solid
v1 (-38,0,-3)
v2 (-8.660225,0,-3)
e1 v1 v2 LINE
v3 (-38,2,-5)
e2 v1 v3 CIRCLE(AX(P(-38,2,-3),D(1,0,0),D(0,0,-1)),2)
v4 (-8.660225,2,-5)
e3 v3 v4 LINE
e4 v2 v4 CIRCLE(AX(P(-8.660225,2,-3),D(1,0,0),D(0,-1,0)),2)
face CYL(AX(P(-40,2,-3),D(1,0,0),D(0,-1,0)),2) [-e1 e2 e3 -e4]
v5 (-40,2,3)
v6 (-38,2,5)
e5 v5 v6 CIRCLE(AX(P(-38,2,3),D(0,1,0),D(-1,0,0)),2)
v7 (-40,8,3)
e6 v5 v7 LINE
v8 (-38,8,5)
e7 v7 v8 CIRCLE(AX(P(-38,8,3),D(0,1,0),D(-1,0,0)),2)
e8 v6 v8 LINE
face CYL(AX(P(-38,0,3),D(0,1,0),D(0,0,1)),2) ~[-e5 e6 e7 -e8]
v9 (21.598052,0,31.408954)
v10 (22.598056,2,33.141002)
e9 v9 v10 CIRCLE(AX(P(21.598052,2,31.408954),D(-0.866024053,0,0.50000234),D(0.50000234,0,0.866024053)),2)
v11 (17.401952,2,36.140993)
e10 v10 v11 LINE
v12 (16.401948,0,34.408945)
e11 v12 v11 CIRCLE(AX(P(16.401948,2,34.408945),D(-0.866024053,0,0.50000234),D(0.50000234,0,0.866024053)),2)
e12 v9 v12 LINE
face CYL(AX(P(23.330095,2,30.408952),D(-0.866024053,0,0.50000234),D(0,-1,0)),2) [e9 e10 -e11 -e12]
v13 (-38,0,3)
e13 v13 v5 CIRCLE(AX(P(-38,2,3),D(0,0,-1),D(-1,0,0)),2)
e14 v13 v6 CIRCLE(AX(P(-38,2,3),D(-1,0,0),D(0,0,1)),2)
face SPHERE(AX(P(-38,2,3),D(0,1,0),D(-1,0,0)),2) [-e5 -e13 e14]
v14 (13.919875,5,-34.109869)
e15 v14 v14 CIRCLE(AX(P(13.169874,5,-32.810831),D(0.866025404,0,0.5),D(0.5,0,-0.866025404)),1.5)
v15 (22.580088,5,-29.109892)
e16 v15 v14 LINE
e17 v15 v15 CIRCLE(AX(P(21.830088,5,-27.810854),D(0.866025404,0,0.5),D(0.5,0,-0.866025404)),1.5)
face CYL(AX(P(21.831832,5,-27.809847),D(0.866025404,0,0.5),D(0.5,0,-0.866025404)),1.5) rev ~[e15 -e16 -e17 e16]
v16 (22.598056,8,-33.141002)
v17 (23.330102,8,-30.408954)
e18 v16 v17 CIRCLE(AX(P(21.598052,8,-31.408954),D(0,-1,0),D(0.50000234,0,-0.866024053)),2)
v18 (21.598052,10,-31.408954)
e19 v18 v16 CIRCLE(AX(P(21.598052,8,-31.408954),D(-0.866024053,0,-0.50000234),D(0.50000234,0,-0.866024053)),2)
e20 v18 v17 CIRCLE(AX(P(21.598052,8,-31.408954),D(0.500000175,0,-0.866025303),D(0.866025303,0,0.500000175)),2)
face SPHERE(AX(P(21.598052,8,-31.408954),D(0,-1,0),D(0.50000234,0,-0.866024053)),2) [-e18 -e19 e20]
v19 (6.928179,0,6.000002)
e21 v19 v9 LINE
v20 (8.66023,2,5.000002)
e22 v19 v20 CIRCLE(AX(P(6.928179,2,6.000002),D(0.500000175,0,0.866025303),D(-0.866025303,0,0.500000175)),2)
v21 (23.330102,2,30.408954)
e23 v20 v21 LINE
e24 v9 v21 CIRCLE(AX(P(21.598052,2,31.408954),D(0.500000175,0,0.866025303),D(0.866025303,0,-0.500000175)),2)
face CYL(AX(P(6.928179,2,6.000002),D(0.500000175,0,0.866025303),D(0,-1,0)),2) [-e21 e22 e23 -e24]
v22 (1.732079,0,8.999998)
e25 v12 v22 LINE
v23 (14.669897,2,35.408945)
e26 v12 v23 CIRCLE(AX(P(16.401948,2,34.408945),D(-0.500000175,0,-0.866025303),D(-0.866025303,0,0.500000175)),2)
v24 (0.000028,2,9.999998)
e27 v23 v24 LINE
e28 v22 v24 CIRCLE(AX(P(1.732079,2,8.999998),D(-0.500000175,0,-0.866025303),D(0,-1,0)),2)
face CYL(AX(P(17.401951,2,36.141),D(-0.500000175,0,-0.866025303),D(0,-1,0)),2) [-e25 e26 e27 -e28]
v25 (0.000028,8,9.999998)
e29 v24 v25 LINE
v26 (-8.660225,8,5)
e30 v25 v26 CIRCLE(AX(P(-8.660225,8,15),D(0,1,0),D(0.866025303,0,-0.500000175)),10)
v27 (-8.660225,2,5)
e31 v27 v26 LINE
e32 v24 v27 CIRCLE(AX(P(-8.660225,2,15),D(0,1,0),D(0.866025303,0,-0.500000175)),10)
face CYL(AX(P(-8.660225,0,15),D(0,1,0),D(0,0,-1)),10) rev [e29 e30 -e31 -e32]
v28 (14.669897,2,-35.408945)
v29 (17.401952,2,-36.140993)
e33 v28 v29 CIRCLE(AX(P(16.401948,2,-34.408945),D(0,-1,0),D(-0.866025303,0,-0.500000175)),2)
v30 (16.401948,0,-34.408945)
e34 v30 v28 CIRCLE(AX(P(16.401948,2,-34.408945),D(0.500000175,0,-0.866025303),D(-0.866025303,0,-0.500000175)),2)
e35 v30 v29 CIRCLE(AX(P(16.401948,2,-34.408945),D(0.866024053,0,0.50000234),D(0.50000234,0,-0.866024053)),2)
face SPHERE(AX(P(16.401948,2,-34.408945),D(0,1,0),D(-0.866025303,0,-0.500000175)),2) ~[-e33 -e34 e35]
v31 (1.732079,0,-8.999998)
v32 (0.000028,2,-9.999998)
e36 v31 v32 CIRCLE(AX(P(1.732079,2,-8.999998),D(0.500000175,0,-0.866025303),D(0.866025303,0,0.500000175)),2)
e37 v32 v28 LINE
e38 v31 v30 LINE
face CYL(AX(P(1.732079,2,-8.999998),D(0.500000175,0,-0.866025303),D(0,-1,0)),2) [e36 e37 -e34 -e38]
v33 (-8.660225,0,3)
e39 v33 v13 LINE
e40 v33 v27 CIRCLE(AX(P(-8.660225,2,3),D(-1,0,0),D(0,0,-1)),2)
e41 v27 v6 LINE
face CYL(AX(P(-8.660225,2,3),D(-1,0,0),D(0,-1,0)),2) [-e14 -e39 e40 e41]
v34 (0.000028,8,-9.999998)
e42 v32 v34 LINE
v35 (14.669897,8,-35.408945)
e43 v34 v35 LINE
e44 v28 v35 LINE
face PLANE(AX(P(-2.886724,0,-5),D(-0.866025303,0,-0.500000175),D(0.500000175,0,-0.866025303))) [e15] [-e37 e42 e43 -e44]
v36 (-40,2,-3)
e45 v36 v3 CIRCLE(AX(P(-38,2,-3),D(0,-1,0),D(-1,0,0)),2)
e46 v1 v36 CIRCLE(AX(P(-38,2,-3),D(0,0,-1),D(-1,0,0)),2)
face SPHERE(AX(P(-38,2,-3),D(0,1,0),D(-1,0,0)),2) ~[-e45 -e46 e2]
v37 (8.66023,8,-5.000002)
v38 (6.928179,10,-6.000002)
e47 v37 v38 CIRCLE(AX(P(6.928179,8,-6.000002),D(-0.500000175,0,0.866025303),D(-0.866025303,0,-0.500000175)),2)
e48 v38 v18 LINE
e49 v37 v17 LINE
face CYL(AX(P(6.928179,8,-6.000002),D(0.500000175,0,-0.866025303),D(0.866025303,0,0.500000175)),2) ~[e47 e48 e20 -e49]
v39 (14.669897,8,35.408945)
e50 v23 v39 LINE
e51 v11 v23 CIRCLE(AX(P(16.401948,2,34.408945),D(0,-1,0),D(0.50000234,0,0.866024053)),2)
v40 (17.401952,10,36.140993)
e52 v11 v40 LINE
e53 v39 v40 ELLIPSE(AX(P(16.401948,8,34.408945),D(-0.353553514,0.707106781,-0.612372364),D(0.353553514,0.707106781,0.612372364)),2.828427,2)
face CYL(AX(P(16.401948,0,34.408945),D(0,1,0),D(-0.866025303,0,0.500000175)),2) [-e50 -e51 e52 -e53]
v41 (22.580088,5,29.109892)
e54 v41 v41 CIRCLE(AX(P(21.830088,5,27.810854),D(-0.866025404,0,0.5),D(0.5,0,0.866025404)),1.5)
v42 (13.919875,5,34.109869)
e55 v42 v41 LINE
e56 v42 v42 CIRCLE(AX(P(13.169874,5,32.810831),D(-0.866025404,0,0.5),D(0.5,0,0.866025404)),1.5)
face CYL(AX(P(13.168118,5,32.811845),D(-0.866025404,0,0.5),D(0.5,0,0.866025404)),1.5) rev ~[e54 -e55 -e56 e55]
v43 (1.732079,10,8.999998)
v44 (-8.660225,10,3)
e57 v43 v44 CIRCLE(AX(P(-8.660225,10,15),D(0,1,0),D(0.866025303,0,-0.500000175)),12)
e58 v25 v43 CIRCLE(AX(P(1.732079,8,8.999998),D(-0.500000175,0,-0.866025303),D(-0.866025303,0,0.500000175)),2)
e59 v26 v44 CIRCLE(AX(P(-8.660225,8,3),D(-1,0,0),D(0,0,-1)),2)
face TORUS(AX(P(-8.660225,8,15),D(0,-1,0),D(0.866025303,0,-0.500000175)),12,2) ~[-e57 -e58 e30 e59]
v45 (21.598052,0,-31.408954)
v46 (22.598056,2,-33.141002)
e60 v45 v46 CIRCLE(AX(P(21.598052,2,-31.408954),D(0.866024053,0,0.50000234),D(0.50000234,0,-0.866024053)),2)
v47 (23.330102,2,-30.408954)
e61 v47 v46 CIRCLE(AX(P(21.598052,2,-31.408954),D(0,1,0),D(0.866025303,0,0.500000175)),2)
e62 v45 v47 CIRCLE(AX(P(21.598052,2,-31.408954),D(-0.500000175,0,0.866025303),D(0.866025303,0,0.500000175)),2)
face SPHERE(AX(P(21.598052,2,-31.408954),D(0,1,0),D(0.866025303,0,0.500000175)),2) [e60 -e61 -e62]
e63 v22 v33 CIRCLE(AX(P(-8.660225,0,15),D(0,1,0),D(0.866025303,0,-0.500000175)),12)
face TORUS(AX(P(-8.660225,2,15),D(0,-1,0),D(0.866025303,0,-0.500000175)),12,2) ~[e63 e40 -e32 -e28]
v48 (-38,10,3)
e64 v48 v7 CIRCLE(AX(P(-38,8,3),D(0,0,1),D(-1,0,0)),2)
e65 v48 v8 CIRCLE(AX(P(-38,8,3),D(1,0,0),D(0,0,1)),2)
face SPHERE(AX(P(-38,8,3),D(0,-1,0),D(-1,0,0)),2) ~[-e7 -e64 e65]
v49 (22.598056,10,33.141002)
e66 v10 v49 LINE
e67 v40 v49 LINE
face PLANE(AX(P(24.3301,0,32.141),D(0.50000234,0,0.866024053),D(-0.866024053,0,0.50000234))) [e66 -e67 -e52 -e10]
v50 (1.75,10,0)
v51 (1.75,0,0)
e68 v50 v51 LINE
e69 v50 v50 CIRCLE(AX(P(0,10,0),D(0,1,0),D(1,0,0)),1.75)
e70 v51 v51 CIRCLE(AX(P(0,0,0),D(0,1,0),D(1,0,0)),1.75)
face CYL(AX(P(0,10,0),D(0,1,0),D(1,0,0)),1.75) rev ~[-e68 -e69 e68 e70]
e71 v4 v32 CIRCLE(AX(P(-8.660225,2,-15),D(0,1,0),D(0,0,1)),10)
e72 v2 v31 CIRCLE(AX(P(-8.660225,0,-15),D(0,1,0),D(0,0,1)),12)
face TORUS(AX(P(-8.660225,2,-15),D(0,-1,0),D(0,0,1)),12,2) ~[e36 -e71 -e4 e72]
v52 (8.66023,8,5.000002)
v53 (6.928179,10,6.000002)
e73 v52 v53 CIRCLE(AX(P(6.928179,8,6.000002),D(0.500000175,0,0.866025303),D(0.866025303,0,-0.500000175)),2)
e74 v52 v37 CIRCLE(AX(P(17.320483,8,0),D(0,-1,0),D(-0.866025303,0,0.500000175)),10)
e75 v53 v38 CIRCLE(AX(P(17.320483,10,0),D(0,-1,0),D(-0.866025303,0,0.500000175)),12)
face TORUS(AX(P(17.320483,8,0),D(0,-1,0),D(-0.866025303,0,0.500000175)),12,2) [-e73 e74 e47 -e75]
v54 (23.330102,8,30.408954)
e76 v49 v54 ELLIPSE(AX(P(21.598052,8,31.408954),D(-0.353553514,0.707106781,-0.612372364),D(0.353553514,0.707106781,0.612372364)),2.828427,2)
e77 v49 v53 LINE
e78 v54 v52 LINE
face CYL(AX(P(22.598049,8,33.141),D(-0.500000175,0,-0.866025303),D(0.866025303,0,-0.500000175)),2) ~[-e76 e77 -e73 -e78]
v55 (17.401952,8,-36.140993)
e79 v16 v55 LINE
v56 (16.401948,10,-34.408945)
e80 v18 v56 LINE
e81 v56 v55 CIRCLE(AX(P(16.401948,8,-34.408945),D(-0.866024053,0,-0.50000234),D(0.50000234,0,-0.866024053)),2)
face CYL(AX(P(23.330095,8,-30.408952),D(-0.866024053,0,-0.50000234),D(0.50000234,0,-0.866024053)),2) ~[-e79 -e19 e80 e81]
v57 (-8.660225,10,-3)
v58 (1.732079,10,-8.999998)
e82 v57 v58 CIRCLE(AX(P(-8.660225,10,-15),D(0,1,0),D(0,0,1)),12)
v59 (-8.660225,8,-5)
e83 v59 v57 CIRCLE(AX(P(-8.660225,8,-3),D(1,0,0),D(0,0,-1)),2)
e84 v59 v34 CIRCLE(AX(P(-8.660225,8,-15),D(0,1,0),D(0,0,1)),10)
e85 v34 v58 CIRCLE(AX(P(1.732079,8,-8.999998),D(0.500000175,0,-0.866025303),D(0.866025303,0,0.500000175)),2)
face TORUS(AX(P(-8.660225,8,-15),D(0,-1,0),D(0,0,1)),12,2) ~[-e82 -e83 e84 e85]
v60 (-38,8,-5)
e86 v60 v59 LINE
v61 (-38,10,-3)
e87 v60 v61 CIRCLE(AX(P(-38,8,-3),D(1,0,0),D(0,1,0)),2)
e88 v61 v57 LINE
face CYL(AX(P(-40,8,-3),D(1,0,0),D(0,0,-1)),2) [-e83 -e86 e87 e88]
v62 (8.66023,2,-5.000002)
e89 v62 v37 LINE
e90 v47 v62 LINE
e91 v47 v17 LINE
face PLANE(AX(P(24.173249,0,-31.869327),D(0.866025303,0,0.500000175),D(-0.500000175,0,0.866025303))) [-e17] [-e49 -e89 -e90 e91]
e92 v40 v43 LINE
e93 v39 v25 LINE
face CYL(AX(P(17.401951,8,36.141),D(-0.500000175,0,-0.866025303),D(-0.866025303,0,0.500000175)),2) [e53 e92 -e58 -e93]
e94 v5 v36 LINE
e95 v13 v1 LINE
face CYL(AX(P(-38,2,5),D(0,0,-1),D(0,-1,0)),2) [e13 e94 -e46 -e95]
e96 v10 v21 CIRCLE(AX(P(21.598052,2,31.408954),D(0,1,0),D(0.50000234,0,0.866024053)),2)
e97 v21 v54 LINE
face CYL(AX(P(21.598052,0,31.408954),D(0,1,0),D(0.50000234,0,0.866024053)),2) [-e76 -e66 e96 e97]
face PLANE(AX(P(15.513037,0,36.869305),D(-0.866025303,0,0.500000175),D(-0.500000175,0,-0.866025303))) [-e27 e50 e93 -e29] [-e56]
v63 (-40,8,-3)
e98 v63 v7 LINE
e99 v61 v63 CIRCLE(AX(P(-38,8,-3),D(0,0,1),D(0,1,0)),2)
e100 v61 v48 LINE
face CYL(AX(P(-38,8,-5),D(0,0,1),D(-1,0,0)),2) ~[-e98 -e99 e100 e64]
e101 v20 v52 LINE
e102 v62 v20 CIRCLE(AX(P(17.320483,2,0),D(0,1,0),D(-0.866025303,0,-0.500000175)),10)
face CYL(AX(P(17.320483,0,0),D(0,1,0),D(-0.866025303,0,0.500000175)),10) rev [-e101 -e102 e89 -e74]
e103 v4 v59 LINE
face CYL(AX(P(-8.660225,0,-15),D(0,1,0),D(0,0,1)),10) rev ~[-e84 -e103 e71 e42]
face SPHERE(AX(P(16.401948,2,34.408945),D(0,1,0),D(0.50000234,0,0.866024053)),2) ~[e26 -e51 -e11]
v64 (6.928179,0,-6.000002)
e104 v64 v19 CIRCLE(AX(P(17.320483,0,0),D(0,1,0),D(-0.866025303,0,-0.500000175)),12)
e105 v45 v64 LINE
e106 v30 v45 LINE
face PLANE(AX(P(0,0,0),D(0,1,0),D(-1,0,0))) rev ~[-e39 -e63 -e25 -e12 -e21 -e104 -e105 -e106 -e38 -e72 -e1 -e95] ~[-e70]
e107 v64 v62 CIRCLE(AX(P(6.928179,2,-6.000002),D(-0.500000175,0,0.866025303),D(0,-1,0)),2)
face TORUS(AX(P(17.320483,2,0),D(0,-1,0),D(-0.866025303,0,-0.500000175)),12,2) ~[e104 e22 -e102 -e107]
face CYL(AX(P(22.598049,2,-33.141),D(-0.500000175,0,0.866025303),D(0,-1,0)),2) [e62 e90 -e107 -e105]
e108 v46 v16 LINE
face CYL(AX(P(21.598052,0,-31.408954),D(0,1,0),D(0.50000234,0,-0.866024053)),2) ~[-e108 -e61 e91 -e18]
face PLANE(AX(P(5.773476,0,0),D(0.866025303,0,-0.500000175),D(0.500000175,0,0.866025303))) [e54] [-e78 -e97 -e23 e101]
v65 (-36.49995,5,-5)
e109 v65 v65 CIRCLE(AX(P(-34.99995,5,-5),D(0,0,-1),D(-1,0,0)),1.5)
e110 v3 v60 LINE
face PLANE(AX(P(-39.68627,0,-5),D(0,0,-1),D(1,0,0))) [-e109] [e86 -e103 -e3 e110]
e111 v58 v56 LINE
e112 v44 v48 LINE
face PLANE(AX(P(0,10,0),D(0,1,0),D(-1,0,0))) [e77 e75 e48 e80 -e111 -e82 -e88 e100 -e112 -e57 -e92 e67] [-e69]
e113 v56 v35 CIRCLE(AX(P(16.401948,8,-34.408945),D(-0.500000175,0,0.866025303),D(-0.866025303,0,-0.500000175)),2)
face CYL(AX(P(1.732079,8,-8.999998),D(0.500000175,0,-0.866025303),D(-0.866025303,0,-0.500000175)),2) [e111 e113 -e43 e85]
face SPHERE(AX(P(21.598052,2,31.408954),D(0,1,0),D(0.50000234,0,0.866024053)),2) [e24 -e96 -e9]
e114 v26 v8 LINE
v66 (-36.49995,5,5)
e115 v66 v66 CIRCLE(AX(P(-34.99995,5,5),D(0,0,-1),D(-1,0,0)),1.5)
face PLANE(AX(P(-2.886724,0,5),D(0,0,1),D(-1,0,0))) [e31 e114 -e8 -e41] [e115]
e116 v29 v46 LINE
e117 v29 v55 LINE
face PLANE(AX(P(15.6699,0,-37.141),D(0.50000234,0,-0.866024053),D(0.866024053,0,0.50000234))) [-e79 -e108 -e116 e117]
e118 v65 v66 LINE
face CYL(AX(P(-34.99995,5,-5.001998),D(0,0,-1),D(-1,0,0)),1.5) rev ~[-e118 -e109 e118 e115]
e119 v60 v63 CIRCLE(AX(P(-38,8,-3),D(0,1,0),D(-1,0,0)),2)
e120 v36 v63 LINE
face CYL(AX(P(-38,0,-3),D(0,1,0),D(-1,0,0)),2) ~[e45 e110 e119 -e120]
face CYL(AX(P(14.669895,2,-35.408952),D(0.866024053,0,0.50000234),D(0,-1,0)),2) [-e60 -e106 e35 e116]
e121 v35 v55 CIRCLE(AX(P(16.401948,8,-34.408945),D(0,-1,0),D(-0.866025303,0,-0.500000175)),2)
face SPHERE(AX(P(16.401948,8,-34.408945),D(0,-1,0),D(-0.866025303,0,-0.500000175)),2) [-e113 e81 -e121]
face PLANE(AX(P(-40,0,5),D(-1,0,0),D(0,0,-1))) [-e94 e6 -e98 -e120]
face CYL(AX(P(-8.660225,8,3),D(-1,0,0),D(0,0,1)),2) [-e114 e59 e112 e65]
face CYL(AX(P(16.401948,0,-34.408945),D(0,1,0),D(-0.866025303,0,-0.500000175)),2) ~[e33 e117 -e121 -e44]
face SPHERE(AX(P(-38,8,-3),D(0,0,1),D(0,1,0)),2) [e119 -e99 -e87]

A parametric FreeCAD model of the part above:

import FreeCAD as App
import Part
import Sketcher
from FreeCAD import Vector
Q = App.Units.Quantity


def edges_at(feature, points):
    """Names of the edges that pass closest to the given points."""
    edges = feature.Shape.Edges
    near = lambda p: min(range(len(edges)), key=lambda i: edges[i].distToShape(Part.Vertex(*p))[0])
    return sorted({f"Edge{near(p) + 1}" for p in points})

doc = App.newDocument("Part")
body = doc.addObject("PartDesign::Body", "Body")

# Sketch on XZ plane
sketch1 = doc.addObject("Sketcher::SketchObject", "Sketch")
body.addObject(sketch1)
sketch1.AttachmentSupport = (doc.XZ_Plane, [""])
sketch1.MapMode = "FlatFace"
sketch1.addGeometry([
    Part.LineSegment(Vector(-3, 5, 0), Vector(16, 37, 0)),  # 0
    Part.LineSegment(Vector(16, 37, 0), Vector(24, 32, 0)),  # 1
    Part.LineSegment(Vector(24, 32, 0), Vector(6, 0, 0)),  # 2
    Part.LineSegment(Vector(6, 0, 0), Vector(24, -32, 0)),  # 3
    Part.LineSegment(Vector(24, -32, 0), Vector(16, -37, 0)),  # 4
    Part.LineSegment(Vector(16, -37, 0), Vector(-3, -5, 0)),  # 5
    Part.LineSegment(Vector(-3, -5, 0), Vector(-40, -5, 0)),  # 6
    Part.LineSegment(Vector(-40, -5, 0), Vector(-40, 5, 0)),  # 7
    Part.LineSegment(Vector(-40, 5, 0), Vector(-3, 5, 0)),  # 8
], False)
sketch1.addConstraint([
    Sketcher.Constraint("Coincident", 0, 2, 1, 1),
    Sketcher.Constraint("Coincident", 1, 2, 2, 1),
    Sketcher.Constraint("Coincident", 2, 2, 3, 1),
    Sketcher.Constraint("Coincident", 3, 2, 4, 1),
    Sketcher.Constraint("Coincident", 4, 2, 5, 1),
    Sketcher.Constraint("Coincident", 5, 2, 6, 1),
    Sketcher.Constraint("Coincident", 6, 2, 7, 1),
    Sketcher.Constraint("Coincident", 7, 2, 8, 1),
    Sketcher.Constraint("Coincident", 8, 2, 0, 1),
    Sketcher.Constraint("Horizontal", 6),
    Sketcher.Constraint("Vertical", 7),
    Sketcher.Constraint("Horizontal", 8),
    Sketcher.Constraint("Symmetric", 1, 2, 3, 2, -1),
    Sketcher.Constraint("Symmetric", 0, 2, 4, 2, -1),
    Sketcher.Constraint("Symmetric", 5, 2, 8, 2, -1),
    Sketcher.Constraint("PointOnObject", 2, 2, -1),
    Sketcher.Constraint("Perpendicular", 0, 1),
    Sketcher.Constraint("Perpendicular", 1, 2),
    Sketcher.Constraint("Equal", 0, 2),
    Sketcher.Constraint("DistanceY", 7, 1, 7, 2, Q("10 mm")),
    Sketcher.Constraint("Distance", 1, Q("10 mm")),
    Sketcher.Constraint("DistanceX", 6, 2, -1, 1, Q("40 mm")),
    Sketcher.Constraint("DistanceX", -1, 1, 0, 2, Q("15.67 mm")),
    Sketcher.Constraint("DistanceX", 6, 2, 6, 1, Q("37.1133 mm")),
])
pad1 = doc.addObject("PartDesign::Pad", "Pad")
body.addObject(pad1)
pad1.Profile = sketch1
pad1.Length = 10
pad1.Reversed = True

# Sketch on an angled plane
sketch2 = doc.addObject("Sketcher::SketchObject", "Sketch001")
body.addObject(sketch2)
sketch2.Placement = App.Placement(Vector(5.7735, 0, 0), App.Rotation(Vector(0.5, 0, -0.866025404), Vector(0, 1, 0), Vector(0.866025404, 0, 0.5), "ZXY"))
sketch2.addGeometry(Part.Circle(Vector(32.1, 5, 0), Vector(0, 0, 1), 1.5), False)
sketch2.addConstraint([
    Sketcher.Constraint("Diameter", 0, Q("3 mm")),
    Sketcher.Constraint("DistanceY", -1, 1, 0, 3, Q("5 mm")),
    Sketcher.Constraint("DistanceX", -1, 1, 0, 3, Q("32.1132 mm")),
])
pocket1 = doc.addObject("PartDesign::Pocket", "Pocket")
body.addObject(pocket1)
pocket1.Profile = sketch2
pocket1.Length = 20

# Sketch on XZ plane
sketch3 = doc.addObject("Sketcher::SketchObject", "Sketch002")
body.addObject(sketch3)
sketch3.AttachmentSupport = (doc.XZ_Plane, [""])
sketch3.MapMode = "FlatFace"
sketch3.AttachmentOffset = App.Placement(Vector(0, 0, -10), App.Rotation())
sketch3.addGeometry(Part.Circle(Vector(0, 0, 0), Vector(0, 0, 1), 1.8), False)
sketch3.addConstraint([
    Sketcher.Constraint("Coincident", 0, 3, -1, 1),
    Sketcher.Constraint("Diameter", 0, Q("3.5 mm")),
])
pocket2 = doc.addObject("PartDesign::Pocket", "Pocket001")
body.addObject(pocket2)
pocket2.Profile = sketch3
pocket2.Length = 10
pocket2.Reversed = True
doc.recompute()

polarpattern = doc.addObject("PartDesign::PolarPattern", "PolarPattern")
body.addObject(polarpattern)
polarpattern.Originals = [pocket1]
polarpattern.Axis = (doc.Y_Axis, [""])
polarpattern.Angle = 360
polarpattern.Occurrences = 3
body.Tip = polarpattern
doc.recompute()

fillet = doc.addObject("PartDesign::Fillet", "Fillet")
body.addObject(fillet)
fillet.Base = (polarpattern, edges_at(polarpattern, [(5.774, 5, 0), (-2.887, 5, 5), (-2.887, 5, -5)]))
fillet.Radius = 10
doc.recompute()

fillet2 = doc.addObject("PartDesign::Fillet", "Fillet001")
body.addObject(fillet2)
fillet2.Base = (fillet, edges_at(fillet, [
    (15.67, 5, 37.141),
    (24.33, 5, 32.141),
    (-40, 5, 5),
    (-40, 10, 0),
    (24.33, 5, -32.141),
    (20, 10, -34.641),
    (15.67, 5, -37.141),
    (-24.33, 10, -5),
    (7.835, 10, -23.57),
    (16.495, 10, 18.57),
    (16.495, 10, -18.57),
    (-24.33, 10, 5),
    (7.835, 10, 23.57),
    (-40, 5, -5),
    (-40, 0, 0),
    (20, 0, 34.641),
    (16.495, 0, -18.57),
    (16.495, 0, 18.57),
    (-24.33, 0, 5),
    (7.835, 0, 23.57),
    (-24.33, 0, -5),
    (7.835, 0, -23.57),
    (20, 0, -34.641),
]))
fillet2.Radius = 2

doc.recompute()
